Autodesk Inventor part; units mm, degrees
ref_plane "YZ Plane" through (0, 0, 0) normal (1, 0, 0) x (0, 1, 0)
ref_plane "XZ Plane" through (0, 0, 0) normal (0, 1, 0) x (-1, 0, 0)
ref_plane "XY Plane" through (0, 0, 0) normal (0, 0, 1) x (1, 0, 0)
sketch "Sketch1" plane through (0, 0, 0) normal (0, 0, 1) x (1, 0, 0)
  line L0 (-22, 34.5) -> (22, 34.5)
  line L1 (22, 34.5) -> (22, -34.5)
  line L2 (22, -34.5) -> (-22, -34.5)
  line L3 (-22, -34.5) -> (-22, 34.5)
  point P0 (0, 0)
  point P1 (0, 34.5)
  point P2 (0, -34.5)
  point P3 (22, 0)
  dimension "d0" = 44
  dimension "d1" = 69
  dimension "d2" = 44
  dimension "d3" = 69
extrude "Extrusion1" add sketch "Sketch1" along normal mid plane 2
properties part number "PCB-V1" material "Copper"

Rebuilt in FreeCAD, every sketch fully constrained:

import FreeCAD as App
import Part
import Sketcher
Q = App.Units.Quantity


def add_polygon(sketch, points):
    """Adds a closed chain of lines whose ends are joined by coincident constraints."""
    first, n = sketch.GeometryCount, len(points)
    for a, b in zip(points, points[1:] + points[:1]):
        sketch.addGeometry(Part.LineSegment(App.Vector(*a, 0), App.Vector(*b, 0)), False)
    for i in range(n):
        sketch.addConstraint(Sketcher.Constraint("Coincident", first + i, 2, first + (i + 1) % n, 1))

doc = App.newDocument("Part")
body = doc.addObject("PartDesign::Body", "Body")

sketch1 = body.newObject("Sketcher::SketchObject", "Sketch")
sketch1.AttachmentSupport = (doc.getObject("XY_Plane"), [""])
sketch1.MapMode = "FlatFace"
add_polygon(sketch1, [(22, 34.5), (-22, 34.5), (-22, -34.5), (22, -34.5)])
sketch1.addConstraint(Sketcher.Constraint("Horizontal", 0))
sketch1.addConstraint(Sketcher.Constraint("Vertical", 1))
sketch1.addConstraint(Sketcher.Constraint("Horizontal", 2))
sketch1.addConstraint(Sketcher.Constraint("Vertical", 3))
sketch1.addConstraint(Sketcher.Constraint("Symmetric", 0, 2, 2, 2, -1, 1))
sketch1.addConstraint(Sketcher.Constraint("DistanceX", 0, 2, 0, 1, Q("44 mm")))
sketch1.addConstraint(Sketcher.Constraint("DistanceY", 1, 2, 1, 1, Q("69 mm")))
pad1 = body.newObject("PartDesign::Pad", "Pad")
pad1.Profile = sketch1
pad1.Length = 2
pad1.Midplane = True

doc.recompute()
